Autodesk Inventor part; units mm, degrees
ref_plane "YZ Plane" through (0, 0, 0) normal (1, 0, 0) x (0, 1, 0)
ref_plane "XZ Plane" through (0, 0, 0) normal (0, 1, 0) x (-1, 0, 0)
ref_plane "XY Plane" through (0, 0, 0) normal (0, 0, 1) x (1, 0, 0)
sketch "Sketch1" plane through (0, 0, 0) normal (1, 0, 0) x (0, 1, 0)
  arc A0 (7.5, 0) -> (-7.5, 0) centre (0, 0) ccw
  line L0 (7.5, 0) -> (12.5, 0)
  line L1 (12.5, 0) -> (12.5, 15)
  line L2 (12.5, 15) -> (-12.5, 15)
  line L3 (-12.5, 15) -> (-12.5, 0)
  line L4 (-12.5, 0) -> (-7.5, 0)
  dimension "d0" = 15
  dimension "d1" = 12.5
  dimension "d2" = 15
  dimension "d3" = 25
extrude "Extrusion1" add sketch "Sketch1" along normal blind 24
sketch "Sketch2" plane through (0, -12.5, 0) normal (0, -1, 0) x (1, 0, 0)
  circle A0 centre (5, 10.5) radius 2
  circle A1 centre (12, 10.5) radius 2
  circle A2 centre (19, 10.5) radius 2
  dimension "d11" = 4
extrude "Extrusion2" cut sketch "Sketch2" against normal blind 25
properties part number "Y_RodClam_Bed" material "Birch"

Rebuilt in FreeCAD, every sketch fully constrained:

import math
import FreeCAD as App
import Part
import Sketcher

doc = App.newDocument("Part")
body = doc.addObject("PartDesign::Body", "Body")

sketch1 = body.newObject("Sketcher::SketchObject", "Sketch")
sketch1.AttachmentSupport = (doc.getObject("YZ_Plane"), [""])
sketch1.MapMode = "FlatFace"
sketch1.addGeometry(Part.ArcOfCircle(Part.Circle(App.Vector(0, 0, 0), App.Vector(0, 0, 1), 8), math.radians(0), math.radians(180)), False)
sketch1.addGeometry(Part.LineSegment(App.Vector(8, 0, 0), App.Vector(12, 0, 0)), False)
sketch1.addGeometry(Part.LineSegment(App.Vector(12, 0, 0), App.Vector(12, 15, 0)), False)
sketch1.addGeometry(Part.LineSegment(App.Vector(12, 15, 0), App.Vector(-12, 15, 0)), False)
sketch1.addGeometry(Part.LineSegment(App.Vector(-12, 15, 0), App.Vector(-12, 0, 0)), False)
sketch1.addGeometry(Part.LineSegment(App.Vector(-12, 0, 0), App.Vector(-8, 0, 0)), False)
sketch1.addConstraint(Sketcher.Constraint("Coincident", 0, 1, 1, 1))
sketch1.addConstraint(Sketcher.Constraint("Coincident", 1, 2, 2, 1))
sketch1.addConstraint(Sketcher.Constraint("Coincident", 2, 2, 3, 1))
sketch1.addConstraint(Sketcher.Constraint("Coincident", 3, 2, 4, 1))
sketch1.addConstraint(Sketcher.Constraint("Coincident", 4, 2, 5, 1))
sketch1.addConstraint(Sketcher.Constraint("Coincident", 5, 2, 0, 2))
sketch1.addConstraint(Sketcher.Constraint("Horizontal", 1))
sketch1.addConstraint(Sketcher.Constraint("Vertical", 2))
sketch1.addConstraint(Sketcher.Constraint("Horizontal", 3))
sketch1.addConstraint(Sketcher.Constraint("Vertical", 4))
sketch1.addConstraint(Sketcher.Constraint("Horizontal", 5))
sketch1.addConstraint(Sketcher.Constraint("Coincident", 0, 3, -1, 1))
sketch1.addConstraint(Sketcher.Constraint("Symmetric", 1, 2, 4, 2, -1, 1))
sketch1.addConstraint(Sketcher.Constraint("PointOnObject", 0, 1, -1))
sketch1.addConstraint(Sketcher.Constraint("Radius", 0, 7.5))
sketch1.addConstraint(Sketcher.Constraint("DistanceX", 3, 2, 3, 1, 25.0))
sketch1.addConstraint(Sketcher.Constraint("DistanceY", 2, 1, 2, 2, 15.0))
pad1 = body.newObject("PartDesign::Pad", "Pad")
pad1.Profile = sketch1
pad1.Length = 24

sketch2 = body.newObject("Sketcher::SketchObject", "Sketch001")
sketch2.AttachmentSupport = (doc.getObject("XZ_Plane"), [""])
sketch2.MapMode = "FlatFace"
sketch2.AttachmentOffset = App.Placement(App.Vector(0, 0, 12.5), App.Rotation())
sketch2.addGeometry(Part.Circle(App.Vector(5, 10.5, 0), App.Vector(0, 0, 1), 2), False)
sketch2.addGeometry(Part.Circle(App.Vector(12, 10.5, 0), App.Vector(0, 0, 1), 2), False)
sketch2.addGeometry(Part.Circle(App.Vector(19, 10.5, 0), App.Vector(0, 0, 1), 2), False)
sketch2.addConstraint(Sketcher.Constraint("Equal", 0, 1))
sketch2.addConstraint(Sketcher.Constraint("Equal", 1, 2))
sketch2.addConstraint(Sketcher.Constraint("Horizontal", 0, 3, 1, 3))
sketch2.addConstraint(Sketcher.Constraint("Horizontal", 1, 3, 2, 3))
sketch2.addConstraint(Sketcher.Constraint("Diameter", 0, 4.0))
sketch2.addConstraint(Sketcher.Constraint("DistanceX", -1, 1, 0, 3, 5.0))
sketch2.addConstraint(Sketcher.Constraint("DistanceX", -1, 1, 1, 3, 12.0))
sketch2.addConstraint(Sketcher.Constraint("DistanceX", -1, 1, 2, 3, 19.0))
sketch2.addConstraint(Sketcher.Constraint("DistanceY", -1, 1, 0, 3, 10.5))
pocket1 = body.newObject("PartDesign::Pocket", "Pocket")
pocket1.Profile = sketch2
pocket1.Length = 25

doc.recompute()
